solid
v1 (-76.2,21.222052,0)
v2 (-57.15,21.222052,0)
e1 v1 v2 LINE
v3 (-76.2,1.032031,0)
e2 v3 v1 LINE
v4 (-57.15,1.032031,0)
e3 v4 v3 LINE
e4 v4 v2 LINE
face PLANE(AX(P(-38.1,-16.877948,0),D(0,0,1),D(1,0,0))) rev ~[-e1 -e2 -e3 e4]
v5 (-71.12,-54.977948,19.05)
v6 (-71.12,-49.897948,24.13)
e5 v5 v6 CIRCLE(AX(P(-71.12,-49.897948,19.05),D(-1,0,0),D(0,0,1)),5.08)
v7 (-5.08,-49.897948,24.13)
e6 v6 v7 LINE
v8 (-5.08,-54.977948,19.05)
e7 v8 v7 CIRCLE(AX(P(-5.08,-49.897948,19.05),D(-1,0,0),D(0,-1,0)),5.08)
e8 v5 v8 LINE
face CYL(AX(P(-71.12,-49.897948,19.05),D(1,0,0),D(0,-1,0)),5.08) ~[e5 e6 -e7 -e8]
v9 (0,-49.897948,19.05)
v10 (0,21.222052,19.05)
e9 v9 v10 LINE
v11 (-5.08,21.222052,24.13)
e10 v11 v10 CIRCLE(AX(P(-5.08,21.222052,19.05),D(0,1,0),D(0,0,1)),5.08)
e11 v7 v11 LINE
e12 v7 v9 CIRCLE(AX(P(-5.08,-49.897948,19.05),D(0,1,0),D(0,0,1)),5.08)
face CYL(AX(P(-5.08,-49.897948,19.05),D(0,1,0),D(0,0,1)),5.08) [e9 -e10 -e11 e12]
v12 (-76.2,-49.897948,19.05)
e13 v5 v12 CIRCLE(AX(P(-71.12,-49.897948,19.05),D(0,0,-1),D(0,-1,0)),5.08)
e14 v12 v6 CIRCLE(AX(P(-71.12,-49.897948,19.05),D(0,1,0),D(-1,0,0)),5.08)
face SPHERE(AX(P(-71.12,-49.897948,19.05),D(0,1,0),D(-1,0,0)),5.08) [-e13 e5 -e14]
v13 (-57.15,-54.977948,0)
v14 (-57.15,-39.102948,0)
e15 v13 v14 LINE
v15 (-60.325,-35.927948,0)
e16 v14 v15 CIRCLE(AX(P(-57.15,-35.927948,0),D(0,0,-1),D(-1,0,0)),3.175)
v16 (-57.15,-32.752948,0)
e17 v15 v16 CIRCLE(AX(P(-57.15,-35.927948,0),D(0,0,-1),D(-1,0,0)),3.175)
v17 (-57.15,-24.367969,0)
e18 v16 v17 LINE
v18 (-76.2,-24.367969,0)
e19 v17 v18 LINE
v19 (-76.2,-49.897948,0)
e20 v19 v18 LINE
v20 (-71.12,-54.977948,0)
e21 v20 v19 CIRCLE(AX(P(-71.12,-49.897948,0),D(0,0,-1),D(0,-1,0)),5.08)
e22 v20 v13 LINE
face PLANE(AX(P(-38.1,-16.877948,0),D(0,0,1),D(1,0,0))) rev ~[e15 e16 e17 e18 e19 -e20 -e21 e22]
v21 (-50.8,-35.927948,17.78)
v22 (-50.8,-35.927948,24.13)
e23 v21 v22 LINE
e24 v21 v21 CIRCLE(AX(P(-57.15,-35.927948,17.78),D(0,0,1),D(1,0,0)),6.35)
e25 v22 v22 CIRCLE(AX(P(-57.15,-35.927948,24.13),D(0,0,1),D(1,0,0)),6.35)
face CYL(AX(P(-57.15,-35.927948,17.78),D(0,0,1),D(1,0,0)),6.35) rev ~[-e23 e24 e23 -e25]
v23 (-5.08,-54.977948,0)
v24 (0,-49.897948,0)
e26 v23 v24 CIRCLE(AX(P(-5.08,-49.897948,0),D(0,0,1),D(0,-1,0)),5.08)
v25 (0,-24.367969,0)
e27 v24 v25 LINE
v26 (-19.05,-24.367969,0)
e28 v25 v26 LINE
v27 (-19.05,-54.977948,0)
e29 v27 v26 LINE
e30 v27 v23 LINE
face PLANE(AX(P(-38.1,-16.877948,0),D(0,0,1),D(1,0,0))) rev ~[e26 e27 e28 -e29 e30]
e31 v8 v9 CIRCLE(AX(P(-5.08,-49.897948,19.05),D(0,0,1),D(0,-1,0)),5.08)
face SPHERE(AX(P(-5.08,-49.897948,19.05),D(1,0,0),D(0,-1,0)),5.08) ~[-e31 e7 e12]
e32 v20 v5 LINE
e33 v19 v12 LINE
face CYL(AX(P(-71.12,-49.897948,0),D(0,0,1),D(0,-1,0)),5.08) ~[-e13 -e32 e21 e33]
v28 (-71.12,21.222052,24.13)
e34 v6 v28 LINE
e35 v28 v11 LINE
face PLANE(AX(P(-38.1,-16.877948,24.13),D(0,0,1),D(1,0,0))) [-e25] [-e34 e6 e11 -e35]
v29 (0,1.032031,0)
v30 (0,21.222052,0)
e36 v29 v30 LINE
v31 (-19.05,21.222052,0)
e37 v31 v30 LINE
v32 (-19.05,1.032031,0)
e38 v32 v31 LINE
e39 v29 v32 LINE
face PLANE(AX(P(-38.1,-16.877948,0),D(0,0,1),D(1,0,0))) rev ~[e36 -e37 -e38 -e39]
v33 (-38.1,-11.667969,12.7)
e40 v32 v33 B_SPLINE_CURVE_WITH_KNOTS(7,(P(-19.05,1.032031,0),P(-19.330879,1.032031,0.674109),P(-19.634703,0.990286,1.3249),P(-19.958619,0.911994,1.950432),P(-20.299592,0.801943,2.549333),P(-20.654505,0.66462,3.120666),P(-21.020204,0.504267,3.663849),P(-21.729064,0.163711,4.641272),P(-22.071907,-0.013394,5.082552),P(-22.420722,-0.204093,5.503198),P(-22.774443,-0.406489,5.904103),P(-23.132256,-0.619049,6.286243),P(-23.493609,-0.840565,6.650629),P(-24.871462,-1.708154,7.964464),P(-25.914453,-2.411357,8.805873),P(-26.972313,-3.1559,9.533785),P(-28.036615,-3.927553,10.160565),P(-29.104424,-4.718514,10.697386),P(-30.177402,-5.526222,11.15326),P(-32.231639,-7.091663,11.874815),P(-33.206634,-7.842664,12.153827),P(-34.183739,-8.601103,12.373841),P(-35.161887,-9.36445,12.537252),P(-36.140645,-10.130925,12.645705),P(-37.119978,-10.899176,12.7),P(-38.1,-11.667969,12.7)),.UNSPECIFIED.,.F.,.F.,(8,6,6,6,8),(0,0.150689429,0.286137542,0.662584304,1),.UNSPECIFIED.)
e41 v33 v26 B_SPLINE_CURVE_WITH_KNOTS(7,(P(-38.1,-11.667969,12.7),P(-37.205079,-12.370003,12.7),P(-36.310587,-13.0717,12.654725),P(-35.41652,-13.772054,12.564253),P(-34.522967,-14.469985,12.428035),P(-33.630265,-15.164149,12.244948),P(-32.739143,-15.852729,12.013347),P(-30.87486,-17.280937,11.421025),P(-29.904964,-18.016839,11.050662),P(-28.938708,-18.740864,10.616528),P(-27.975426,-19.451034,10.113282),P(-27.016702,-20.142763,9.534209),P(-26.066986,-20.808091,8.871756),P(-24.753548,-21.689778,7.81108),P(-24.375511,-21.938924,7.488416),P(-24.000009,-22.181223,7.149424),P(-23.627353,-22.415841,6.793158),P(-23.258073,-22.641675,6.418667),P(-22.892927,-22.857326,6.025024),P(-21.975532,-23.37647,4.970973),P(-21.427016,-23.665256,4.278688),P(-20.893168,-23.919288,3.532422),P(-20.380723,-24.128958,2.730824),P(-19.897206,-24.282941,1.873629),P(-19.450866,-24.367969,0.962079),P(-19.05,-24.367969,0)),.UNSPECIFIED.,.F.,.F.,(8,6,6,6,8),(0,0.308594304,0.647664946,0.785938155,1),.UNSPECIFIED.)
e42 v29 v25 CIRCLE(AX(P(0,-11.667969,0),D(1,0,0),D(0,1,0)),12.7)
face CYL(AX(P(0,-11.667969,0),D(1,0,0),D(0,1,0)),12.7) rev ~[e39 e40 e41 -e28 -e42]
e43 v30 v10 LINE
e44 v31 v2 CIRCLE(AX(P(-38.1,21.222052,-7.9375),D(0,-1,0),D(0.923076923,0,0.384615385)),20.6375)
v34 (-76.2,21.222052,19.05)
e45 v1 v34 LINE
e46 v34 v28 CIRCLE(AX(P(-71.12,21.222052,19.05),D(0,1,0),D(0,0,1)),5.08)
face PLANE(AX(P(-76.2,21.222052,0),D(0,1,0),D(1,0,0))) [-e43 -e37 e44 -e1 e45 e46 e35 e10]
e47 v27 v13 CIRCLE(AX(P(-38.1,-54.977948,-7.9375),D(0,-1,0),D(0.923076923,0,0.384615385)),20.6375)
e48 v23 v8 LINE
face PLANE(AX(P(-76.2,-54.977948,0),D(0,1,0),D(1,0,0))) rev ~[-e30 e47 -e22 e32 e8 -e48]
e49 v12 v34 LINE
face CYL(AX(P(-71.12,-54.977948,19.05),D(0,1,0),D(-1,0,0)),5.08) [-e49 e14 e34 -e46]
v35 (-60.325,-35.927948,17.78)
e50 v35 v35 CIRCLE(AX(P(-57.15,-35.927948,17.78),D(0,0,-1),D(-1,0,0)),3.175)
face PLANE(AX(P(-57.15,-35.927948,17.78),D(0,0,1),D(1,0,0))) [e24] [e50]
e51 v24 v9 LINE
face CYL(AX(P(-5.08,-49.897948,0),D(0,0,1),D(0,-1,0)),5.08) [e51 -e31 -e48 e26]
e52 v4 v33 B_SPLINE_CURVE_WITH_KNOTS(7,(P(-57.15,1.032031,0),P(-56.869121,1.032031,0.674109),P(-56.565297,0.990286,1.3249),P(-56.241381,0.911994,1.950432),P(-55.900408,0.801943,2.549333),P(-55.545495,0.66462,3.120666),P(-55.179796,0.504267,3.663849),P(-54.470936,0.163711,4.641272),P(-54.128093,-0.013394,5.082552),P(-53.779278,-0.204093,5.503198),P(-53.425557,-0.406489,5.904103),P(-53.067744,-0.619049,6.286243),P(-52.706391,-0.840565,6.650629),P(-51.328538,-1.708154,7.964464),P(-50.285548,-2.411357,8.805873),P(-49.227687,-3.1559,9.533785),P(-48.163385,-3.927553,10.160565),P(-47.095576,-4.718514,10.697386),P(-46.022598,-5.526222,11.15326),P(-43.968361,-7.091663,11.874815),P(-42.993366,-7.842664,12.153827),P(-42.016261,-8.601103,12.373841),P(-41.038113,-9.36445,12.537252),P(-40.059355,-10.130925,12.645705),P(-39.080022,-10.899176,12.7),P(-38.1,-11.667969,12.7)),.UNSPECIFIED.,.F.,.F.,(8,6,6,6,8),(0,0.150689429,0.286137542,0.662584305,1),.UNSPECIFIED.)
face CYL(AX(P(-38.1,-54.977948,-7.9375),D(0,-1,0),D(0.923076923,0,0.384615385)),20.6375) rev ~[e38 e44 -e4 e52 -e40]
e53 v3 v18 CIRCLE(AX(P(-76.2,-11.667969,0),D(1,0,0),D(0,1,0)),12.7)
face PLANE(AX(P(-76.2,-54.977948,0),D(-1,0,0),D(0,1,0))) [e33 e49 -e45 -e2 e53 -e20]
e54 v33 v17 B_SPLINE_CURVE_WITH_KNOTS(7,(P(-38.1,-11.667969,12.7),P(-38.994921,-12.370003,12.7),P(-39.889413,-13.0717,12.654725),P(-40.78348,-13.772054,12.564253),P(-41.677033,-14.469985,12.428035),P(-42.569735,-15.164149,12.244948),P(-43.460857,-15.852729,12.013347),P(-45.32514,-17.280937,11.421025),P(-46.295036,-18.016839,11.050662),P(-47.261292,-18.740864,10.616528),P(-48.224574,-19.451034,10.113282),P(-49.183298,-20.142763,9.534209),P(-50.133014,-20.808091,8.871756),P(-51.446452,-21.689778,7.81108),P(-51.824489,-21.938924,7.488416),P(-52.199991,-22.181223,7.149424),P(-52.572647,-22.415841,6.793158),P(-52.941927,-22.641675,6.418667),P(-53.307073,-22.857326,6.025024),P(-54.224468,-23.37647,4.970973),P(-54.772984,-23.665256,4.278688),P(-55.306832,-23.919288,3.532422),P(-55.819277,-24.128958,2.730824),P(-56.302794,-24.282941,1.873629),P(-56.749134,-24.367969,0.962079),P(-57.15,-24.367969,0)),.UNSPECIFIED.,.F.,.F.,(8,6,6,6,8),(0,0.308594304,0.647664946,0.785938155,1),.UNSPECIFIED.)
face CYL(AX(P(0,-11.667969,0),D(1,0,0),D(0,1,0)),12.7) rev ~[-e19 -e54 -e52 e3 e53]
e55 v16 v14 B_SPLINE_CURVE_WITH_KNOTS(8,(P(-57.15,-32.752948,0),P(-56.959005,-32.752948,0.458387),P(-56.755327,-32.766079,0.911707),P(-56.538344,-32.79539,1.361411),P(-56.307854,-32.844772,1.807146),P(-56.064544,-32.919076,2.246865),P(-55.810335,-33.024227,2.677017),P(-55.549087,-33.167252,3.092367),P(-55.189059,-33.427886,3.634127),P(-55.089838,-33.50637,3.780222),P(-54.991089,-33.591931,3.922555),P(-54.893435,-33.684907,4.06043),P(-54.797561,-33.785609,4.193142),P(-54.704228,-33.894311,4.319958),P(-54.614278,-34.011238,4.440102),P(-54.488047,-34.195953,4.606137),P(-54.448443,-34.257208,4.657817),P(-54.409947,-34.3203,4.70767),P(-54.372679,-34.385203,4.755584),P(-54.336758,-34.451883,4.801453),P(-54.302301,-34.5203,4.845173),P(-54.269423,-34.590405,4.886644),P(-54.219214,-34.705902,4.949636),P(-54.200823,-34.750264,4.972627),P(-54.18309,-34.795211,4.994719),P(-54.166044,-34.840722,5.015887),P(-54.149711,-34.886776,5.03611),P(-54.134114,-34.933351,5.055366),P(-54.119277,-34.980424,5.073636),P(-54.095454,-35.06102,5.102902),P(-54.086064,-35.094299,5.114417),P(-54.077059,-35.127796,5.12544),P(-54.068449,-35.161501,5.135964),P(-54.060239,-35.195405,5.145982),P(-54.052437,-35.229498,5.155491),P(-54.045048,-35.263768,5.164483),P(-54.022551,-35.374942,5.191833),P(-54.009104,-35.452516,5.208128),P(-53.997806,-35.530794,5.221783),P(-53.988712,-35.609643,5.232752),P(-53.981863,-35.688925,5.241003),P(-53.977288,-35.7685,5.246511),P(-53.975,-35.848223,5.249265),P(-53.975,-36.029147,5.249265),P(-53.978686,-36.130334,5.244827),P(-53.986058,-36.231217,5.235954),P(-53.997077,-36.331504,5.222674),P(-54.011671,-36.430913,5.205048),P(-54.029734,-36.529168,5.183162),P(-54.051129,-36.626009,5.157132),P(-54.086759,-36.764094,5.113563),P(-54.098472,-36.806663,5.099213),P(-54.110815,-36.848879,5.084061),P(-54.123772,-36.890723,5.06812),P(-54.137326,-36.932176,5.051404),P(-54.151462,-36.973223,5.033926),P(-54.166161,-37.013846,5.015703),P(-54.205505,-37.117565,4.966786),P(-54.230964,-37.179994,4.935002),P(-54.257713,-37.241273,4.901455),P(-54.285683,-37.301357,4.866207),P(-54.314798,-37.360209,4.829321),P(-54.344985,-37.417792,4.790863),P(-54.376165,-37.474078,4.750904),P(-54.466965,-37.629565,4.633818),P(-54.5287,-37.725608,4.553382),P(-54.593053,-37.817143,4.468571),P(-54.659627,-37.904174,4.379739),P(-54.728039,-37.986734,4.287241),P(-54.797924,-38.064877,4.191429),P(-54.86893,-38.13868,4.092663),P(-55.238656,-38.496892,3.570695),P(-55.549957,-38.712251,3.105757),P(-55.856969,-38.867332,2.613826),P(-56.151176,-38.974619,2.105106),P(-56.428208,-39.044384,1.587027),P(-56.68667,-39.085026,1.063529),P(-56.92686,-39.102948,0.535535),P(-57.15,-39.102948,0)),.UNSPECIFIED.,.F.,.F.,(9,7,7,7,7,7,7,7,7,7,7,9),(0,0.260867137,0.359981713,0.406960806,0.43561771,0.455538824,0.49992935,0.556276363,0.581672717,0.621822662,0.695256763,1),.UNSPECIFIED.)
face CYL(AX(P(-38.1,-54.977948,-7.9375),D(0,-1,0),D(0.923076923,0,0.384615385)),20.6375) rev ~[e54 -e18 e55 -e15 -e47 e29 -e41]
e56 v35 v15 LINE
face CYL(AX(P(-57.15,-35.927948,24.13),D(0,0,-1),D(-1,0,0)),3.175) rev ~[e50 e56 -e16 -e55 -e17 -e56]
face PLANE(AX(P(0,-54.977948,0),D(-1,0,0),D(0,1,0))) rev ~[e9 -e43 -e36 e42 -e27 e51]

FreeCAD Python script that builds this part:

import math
import FreeCAD as App
import Part
import Sketcher
Q = App.Units.Quantity


def edges_at(feature, points):
    """Names of the edges that pass closest to the given points."""
    edges = feature.Shape.Edges
    near = lambda p: min(range(len(edges)), key=lambda i: edges[i].distToShape(Part.Vertex(*p))[0])
    return sorted({f"Edge{near(p) + 1}" for p in points})


def add_polygon(sketch, points):
    """Adds a closed chain of lines whose ends are joined by coincident constraints."""
    first, n = sketch.GeometryCount, len(points)
    for a, b in zip(points, points[1:] + points[:1]):
        sketch.addGeometry(Part.LineSegment(App.Vector(*a, 0), App.Vector(*b, 0)), False)
    for i in range(n):
        sketch.addConstraint(Sketcher.Constraint("Coincident", first + i, 2, first + (i + 1) % n, 1))

doc = App.newDocument("Part")
body = doc.addObject("PartDesign::Body", "Body")

sketch1 = body.newObject("Sketcher::SketchObject", "Sketch")
sketch1.AttachmentSupport = (doc.getObject("XY_Plane"), [""])
sketch1.MapMode = "FlatFace"
add_polygon(sketch1, [(-76, 21), (-76, -55), (0, -55), (0, 21)])
sketch1.addConstraint([
    Sketcher.Constraint("Vertical", 0),
    Sketcher.Constraint("Horizontal", 1),
    Sketcher.Constraint("Vertical", 2),
    Sketcher.Constraint("Horizontal", 3),
    Sketcher.Constraint("PointOnObject", 1, 2, -2),
    Sketcher.Constraint("Equal", 3, 0),
    Sketcher.Constraint("DistanceX", 1, 1, 1, 2, Q("3 in")),
    Sketcher.Constraint("DistanceY", 0, 2, -1, 1, Q("54.977948 mm")),
])
pad1 = body.newObject("PartDesign::Pad", "Pad")
pad1.Profile = sketch1
pad1.Length = Q("0.95 in")

sketch2 = body.newObject("Sketcher::SketchObject", "Sketch001")
sketch2.AttachmentSupport = (doc.getObject("YZ_Plane"), [""])
sketch2.MapMode = "FlatFace"
sketch2.addGeometry([
    Part.LineSegment(App.Vector(-24, 0, 0), App.Vector(1, 0, 0)),
    Part.ArcOfCircle(Part.Circle(App.Vector(-12, 0, 0), App.Vector(0, 0, 1), 13), math.radians(0), math.radians(180)),
], False)
sketch2.addConstraint([
    Sketcher.Constraint("Coincident", 0, 1, 1, 2),
    Sketcher.Constraint("Coincident", 1, 1, 0, 2),
    Sketcher.Constraint("Horizontal", 0),
    Sketcher.Constraint("PointOnObject", 1, 3, -1),
    Sketcher.Constraint("PointOnObject", 0, 1, -1),
    Sketcher.Constraint("Radius", 1, Q("0.5 in")),
    Sketcher.Constraint("DistanceX", 1, 3, -1, 1, Q("11.667969 mm")),
])
pocket1 = body.newObject("PartDesign::Pocket", "Pocket")
pocket1.Profile = sketch2
pocket1.Type = "ThroughAll"

sketch3 = body.newObject("Sketcher::SketchObject", "Sketch002")
sketch3.AttachmentSupport = (doc.getObject("XZ_Plane"), [""])
sketch3.MapMode = "FlatFace"
sketch3.AttachmentOffset = App.Placement(App.Vector(0, 0, 54.977948), App.Rotation())
sketch3.addGeometry([
    Part.LineSegment(App.Vector(-57, 0, 0), App.Vector(-19, 0, 0)),
    Part.ArcOfCircle(Part.Circle(App.Vector(-38, -8, 0), App.Vector(0, 0, 1), 21), math.radians(23), math.radians(157)),
], False)
sketch3.addConstraint([
    Sketcher.Constraint("Coincident", 0, 1, 1, 2),
    Sketcher.Constraint("Coincident", 1, 1, 0, 2),
    Sketcher.Constraint("Horizontal", 0),
    Sketcher.Constraint("PointOnObject", 0, 1, -1),
    Sketcher.Constraint("DistanceX", 0, 1, 0, 2, Q("1.5 in")),
    Sketcher.Constraint("Radius", 1, Q("0.8125 in")),
    Sketcher.Constraint("DistanceX", 1, 3, -1, 1, Q("1.5 in")),
])
pocket2 = body.newObject("PartDesign::Pocket", "Pocket001")
pocket2.Profile = sketch3
pocket2.Type = "ThroughAll"

sketch4 = body.newObject("Sketcher::SketchObject", "Sketch003")
sketch4.AttachmentSupport = (doc.getObject("XY_Plane"), [""])
sketch4.MapMode = "FlatFace"
sketch4.AttachmentOffset = App.Placement(App.Vector(0, 0, 0.95 * 25.4), App.Rotation())
sketch4.addGeometry(Part.Circle(App.Vector(-57.1, -35.9, 0), App.Vector(0, 0, 1), 3.2), False)
sketch4.addConstraint([
    Sketcher.Constraint("Diameter", 0, Q("0.25 in")),
    Sketcher.Constraint("DistanceX", 0, 3, -1, 1, Q("2.25 in")),
    Sketcher.Constraint("DistanceY", 0, 3, -1, 1, Q("35.927948 mm")),
])
doc.recompute()
hole = body.newObject("PartDesign::Hole", "Hole")
hole.Profile = sketch4
hole.ThreadType = "None"
hole.Diameter = Q("0.25 in")
hole.DepthType = "ThroughAll"
hole.HoleCutType = "Counterbore"
hole.HoleCutDiameter = Q("0.5 in")
hole.HoleCutDepth = Q("0.25 in")
doc.recompute()

fillet = body.newObject("PartDesign::Fillet", "Fillet")
fillet.Base = (hole, edges_at(hole, [(-76.2, -16.878, 24.13)]))
fillet.Radius = Q("0.2 in")
doc.recompute()

fillet2 = body.newObject("PartDesign::Fillet", "Fillet001")
fillet2.Base = (fillet, edges_at(fillet, [(-35.56, -54.978, 24.13)]))
fillet2.Radius = Q("0.2 in")
doc.recompute()

fillet3 = body.newObject("PartDesign::Fillet", "Fillet002")
fillet3.Base = (fillet2, edges_at(fillet2, [(0, -14.338, 24.13)]))
fillet3.Radius = Q("0.2 in")

doc.recompute()
